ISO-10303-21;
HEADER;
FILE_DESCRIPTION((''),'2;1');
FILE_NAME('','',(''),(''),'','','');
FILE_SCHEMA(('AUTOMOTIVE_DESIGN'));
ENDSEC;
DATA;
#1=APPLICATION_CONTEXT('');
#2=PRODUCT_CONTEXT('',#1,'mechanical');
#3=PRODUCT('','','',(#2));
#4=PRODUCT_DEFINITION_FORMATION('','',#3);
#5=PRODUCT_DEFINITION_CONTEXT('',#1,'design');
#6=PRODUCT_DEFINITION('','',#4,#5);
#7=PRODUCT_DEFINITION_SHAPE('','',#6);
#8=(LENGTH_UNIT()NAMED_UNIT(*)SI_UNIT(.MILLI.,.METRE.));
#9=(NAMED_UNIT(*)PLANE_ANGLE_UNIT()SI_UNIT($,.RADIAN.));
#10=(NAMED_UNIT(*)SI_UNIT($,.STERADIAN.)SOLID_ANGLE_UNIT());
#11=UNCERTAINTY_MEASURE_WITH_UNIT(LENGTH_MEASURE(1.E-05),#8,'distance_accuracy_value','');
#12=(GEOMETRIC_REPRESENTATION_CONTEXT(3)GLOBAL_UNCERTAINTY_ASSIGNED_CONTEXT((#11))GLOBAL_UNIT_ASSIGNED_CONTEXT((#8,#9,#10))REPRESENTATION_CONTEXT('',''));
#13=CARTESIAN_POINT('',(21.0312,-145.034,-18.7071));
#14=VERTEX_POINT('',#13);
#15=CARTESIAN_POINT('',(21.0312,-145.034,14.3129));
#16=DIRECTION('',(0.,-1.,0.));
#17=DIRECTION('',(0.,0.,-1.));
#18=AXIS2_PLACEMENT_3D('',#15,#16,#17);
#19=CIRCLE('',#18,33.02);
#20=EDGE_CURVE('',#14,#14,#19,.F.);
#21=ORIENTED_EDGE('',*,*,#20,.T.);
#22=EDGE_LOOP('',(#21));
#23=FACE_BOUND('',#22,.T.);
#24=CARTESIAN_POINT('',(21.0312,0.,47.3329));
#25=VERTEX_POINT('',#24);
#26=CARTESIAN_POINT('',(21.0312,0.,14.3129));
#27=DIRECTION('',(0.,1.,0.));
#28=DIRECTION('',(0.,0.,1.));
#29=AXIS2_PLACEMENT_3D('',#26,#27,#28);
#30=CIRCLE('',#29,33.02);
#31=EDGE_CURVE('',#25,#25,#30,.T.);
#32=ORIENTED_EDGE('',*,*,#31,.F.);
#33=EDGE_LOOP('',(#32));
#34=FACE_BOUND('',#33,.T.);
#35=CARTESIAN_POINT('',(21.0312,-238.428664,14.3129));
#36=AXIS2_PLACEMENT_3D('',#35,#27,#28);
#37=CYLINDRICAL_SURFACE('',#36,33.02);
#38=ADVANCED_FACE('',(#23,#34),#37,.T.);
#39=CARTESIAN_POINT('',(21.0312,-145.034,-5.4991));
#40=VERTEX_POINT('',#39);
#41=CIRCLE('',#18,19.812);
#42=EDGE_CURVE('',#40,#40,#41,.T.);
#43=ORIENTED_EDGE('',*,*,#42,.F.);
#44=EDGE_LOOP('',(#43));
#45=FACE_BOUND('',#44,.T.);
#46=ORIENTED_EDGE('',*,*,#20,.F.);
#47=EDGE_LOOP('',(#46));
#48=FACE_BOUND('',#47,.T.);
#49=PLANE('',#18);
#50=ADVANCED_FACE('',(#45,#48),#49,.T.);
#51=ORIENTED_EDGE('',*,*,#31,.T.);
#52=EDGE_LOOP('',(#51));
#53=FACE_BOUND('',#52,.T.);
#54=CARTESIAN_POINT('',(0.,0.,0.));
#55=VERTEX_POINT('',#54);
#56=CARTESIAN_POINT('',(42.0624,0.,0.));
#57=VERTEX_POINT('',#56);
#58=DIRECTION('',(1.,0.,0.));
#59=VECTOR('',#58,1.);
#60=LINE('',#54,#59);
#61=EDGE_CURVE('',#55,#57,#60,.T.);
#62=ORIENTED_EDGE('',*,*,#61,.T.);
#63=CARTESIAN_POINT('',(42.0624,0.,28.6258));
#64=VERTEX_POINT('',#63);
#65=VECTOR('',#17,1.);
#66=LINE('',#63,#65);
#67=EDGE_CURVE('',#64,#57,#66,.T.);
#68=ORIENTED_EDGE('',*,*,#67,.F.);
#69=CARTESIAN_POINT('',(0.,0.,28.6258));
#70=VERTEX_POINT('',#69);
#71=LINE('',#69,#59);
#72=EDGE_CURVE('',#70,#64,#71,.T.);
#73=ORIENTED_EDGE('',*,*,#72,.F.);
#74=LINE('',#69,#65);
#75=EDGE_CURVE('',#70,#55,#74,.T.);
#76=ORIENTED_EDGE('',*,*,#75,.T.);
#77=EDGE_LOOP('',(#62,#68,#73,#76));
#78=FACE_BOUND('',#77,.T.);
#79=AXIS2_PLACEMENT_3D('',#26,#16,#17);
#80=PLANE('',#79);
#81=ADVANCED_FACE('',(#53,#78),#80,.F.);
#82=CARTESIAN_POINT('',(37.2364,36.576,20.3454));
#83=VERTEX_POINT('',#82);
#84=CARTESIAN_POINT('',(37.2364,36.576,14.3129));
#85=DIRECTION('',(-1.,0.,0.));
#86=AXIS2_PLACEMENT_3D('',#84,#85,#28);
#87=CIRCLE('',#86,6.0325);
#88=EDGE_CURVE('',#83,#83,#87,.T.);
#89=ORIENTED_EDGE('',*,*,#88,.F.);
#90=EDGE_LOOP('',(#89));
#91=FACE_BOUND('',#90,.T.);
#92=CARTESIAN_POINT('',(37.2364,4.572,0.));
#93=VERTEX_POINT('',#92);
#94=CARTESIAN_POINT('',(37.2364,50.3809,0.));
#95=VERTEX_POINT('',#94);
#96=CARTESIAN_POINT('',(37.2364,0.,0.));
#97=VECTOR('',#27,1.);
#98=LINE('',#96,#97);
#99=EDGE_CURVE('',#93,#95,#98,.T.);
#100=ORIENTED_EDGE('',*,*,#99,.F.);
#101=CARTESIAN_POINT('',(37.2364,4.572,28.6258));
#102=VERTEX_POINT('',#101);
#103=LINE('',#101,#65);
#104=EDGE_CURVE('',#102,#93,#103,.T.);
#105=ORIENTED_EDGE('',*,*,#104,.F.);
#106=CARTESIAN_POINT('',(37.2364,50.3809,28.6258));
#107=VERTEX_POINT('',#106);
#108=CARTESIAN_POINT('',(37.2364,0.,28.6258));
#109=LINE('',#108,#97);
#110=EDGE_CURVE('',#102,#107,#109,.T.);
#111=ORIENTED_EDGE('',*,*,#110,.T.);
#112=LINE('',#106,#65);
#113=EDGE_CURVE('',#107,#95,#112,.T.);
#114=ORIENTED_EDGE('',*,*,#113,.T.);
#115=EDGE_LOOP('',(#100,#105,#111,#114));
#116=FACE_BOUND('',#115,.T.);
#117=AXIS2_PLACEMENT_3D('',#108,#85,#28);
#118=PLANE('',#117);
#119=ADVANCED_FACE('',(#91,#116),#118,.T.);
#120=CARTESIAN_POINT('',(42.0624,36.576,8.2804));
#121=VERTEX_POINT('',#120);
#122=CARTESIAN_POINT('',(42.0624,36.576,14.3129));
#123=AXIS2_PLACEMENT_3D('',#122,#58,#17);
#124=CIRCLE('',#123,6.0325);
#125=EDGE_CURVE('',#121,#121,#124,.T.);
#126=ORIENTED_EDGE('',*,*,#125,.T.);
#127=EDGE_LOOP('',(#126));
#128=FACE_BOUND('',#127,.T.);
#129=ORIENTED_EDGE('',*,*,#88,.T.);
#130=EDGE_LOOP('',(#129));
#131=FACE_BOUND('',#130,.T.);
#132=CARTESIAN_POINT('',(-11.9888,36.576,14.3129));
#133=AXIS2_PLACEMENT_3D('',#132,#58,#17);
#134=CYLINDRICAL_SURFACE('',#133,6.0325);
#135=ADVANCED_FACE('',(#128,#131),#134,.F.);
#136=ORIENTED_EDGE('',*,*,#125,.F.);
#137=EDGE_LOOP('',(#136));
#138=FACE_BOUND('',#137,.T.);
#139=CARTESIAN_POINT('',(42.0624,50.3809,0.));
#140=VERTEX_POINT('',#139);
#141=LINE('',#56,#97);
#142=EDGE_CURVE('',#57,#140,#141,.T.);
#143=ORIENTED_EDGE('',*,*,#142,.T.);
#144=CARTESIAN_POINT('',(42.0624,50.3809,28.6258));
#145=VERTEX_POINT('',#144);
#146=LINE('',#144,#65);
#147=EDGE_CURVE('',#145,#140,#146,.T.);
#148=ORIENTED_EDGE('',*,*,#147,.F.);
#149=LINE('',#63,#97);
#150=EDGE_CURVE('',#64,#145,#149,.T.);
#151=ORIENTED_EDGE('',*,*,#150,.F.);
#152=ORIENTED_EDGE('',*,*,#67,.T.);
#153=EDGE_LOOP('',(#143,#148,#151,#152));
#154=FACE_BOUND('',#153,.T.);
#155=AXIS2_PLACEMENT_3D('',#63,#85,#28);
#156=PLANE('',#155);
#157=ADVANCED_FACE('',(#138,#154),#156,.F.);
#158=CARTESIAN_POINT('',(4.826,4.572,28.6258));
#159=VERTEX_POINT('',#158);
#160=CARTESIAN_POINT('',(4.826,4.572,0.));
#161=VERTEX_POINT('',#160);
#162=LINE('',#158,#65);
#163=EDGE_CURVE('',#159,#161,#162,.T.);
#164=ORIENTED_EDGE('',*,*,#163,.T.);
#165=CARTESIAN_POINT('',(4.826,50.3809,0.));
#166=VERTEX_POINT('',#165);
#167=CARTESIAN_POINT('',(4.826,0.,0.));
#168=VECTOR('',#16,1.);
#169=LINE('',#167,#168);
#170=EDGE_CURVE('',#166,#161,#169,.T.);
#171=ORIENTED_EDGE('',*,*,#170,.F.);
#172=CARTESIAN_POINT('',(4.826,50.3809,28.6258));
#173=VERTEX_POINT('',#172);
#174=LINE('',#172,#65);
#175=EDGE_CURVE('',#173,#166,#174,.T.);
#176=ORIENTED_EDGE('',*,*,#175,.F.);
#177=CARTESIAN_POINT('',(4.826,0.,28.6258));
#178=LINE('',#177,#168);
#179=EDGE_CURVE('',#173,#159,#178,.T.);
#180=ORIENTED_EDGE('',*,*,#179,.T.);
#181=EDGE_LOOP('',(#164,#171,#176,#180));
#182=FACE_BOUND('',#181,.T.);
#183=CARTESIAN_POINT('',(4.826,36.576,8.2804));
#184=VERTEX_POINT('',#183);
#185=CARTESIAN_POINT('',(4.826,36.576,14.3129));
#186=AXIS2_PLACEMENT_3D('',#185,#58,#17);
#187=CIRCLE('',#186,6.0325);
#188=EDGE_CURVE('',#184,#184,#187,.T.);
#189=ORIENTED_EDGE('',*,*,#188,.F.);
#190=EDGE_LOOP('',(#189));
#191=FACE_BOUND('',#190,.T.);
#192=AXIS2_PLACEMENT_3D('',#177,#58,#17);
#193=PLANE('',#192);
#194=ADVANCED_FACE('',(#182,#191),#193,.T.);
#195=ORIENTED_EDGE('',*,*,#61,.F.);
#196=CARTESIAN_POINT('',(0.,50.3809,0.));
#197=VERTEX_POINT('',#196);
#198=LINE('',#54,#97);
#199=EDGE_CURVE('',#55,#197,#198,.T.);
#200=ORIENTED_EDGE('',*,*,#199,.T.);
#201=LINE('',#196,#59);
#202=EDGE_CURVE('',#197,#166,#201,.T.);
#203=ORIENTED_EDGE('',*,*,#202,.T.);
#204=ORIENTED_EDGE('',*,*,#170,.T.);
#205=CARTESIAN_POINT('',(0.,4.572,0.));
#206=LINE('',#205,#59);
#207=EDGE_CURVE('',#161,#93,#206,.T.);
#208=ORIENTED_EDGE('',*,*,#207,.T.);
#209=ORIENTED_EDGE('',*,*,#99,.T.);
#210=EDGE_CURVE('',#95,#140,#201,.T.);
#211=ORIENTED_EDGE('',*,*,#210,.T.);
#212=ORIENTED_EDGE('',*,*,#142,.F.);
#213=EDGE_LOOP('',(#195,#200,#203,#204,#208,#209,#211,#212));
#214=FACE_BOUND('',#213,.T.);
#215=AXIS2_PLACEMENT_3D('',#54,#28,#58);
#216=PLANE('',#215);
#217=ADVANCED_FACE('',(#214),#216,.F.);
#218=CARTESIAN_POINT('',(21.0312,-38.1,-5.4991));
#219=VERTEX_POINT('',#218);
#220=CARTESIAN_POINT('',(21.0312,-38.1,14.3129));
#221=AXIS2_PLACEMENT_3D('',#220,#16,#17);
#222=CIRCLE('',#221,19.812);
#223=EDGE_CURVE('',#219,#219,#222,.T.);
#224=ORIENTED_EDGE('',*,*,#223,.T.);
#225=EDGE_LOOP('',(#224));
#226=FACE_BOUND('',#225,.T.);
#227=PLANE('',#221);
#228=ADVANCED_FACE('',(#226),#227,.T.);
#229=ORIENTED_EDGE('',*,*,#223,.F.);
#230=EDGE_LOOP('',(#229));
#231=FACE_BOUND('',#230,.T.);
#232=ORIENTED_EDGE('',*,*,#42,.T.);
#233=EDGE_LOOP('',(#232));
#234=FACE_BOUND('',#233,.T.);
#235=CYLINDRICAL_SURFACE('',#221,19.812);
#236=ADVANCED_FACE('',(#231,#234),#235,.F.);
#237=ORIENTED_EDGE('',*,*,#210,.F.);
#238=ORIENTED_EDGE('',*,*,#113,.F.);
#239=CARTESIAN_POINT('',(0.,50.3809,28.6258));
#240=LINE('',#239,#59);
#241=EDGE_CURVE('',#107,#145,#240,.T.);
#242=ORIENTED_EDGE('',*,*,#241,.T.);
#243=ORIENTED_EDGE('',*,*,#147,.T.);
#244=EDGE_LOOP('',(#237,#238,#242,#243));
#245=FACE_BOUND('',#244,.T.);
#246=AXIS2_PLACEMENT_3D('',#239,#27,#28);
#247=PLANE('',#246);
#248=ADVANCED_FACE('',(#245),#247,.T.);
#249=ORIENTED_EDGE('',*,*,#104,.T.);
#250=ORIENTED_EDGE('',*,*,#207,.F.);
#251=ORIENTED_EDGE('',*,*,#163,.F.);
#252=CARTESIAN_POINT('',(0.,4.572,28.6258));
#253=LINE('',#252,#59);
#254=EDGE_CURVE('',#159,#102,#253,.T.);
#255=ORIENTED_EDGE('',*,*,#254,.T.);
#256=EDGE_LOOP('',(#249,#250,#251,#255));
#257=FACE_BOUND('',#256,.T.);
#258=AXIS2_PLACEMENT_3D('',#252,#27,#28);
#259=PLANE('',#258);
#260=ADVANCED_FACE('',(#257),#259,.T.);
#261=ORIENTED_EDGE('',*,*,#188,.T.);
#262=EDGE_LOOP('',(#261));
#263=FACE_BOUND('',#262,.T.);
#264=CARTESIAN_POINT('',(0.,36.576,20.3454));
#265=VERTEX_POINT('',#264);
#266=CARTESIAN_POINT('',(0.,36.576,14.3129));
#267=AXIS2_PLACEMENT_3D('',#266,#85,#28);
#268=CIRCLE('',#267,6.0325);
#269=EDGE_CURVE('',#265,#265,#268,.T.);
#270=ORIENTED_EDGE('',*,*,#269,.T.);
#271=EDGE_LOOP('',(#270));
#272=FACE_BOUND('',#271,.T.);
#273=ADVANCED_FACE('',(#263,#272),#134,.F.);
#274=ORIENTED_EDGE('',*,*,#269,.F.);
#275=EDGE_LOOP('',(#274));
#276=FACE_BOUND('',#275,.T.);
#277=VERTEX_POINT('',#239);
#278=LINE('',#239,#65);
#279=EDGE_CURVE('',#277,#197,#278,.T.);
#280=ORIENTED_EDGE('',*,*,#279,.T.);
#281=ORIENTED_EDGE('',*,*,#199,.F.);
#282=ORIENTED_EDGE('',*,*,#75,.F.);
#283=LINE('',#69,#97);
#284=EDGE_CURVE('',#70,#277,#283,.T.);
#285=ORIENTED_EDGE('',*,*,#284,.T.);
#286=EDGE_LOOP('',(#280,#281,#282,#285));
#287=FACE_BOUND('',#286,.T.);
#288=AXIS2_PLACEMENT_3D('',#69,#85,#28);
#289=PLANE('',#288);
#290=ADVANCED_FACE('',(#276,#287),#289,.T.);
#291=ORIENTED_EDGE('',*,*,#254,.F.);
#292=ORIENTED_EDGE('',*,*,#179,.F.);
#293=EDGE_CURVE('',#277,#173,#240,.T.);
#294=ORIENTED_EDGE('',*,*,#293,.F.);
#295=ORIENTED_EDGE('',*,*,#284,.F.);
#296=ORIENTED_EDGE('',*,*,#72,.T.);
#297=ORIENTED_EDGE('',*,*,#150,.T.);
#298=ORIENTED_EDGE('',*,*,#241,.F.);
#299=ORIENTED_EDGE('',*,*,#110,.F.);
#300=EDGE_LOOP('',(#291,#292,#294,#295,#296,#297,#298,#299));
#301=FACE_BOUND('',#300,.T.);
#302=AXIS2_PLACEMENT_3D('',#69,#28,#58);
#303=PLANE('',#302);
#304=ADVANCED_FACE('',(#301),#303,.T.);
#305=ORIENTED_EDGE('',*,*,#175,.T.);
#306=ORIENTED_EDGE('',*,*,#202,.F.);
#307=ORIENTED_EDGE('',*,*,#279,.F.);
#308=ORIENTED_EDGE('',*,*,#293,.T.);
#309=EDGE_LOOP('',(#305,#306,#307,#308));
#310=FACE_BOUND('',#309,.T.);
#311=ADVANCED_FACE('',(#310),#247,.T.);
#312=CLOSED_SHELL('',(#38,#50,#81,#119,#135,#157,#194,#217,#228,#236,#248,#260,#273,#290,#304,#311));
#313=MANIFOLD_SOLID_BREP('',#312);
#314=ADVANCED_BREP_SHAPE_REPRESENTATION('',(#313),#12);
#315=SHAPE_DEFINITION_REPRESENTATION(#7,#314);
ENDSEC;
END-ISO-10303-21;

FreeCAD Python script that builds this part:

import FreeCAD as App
import Part
import Sketcher
from FreeCAD import Vector
Q = App.Units.Quantity

doc = App.newDocument("Part")
body = doc.addObject("PartDesign::Body", "Body")

sketch1 = body.newObject("Sketcher::SketchObject", "Sketch")
sketch1.AttachmentSupport = (doc.getObject("XY_Plane"), [""])
sketch1.MapMode = "FlatFace"
sketch1.addGeometry([
    Part.LineSegment(Vector(42.1, 50.4, 0), Vector(37.2, 50.4, 0)),
    Part.LineSegment(Vector(37.2, 50.4, 0), Vector(37.2, 4.6, 0)),
    Part.LineSegment(Vector(37.2, 4.6, 0), Vector(4.8, 4.6, 0)),
    Part.LineSegment(Vector(4.8, 4.6, 0), Vector(4.8, 50.4, 0)),
    Part.LineSegment(Vector(4.8, 50.4, 0), Vector(0, 50.4, 0)),
    Part.LineSegment(Vector(0, 50.4, 0), Vector(0, 0, 0)),
    Part.LineSegment(Vector(0, 0, 0), Vector(42.1, 0, 0)),
    Part.LineSegment(Vector(42.1, 0, 0), Vector(42.1, 50.4, 0)),
], False)
sketch1.addConstraint([
    Sketcher.Constraint("Coincident", 0, 2, 1, 1),
    Sketcher.Constraint("Coincident", 1, 2, 2, 1),
    Sketcher.Constraint("Coincident", 2, 2, 3, 1),
    Sketcher.Constraint("Coincident", 3, 2, 4, 1),
    Sketcher.Constraint("Coincident", 4, 2, 5, 1),
    Sketcher.Constraint("Coincident", 5, 2, 6, 1),
    Sketcher.Constraint("Coincident", 6, 2, 7, 1),
    Sketcher.Constraint("Coincident", 7, 2, 0, 1),
    Sketcher.Constraint("Horizontal", 0),
    Sketcher.Constraint("Vertical", 1),
    Sketcher.Constraint("Horizontal", 2),
    Sketcher.Constraint("Vertical", 3),
    Sketcher.Constraint("Horizontal", 4),
    Sketcher.Constraint("Vertical", 5),
    Sketcher.Constraint("Horizontal", 6),
    Sketcher.Constraint("Vertical", 7),
    Sketcher.Constraint("Coincident", 5, 2, -1, 1),
    Sketcher.Constraint("Horizontal", 0, 2, 3, 2),
    Sketcher.Constraint("Equal", 0, 4),
    Sketcher.Constraint("DistanceX", 0, 2, 0, 1, Q("0.19 in")),
    Sketcher.Constraint("DistanceX", 2, 2, 2, 1, Q("1.276 in")),
    Sketcher.Constraint("DistanceY", -1, 1, 1, 2, Q("0.18 in")),
    Sketcher.Constraint("DistanceY", 1, 2, 1, 1, Q("1.8035 in")),
])
pad1 = body.newObject("PartDesign::Pad", "Pad")
pad1.Profile = sketch1
pad1.Length = Q("1.127 in")

sketch2 = body.newObject("Sketcher::SketchObject", "Sketch001")
sketch2.AttachmentSupport = (doc.getObject("XZ_Plane"), [""])
sketch2.MapMode = "FlatFace"
sketch2.addGeometry(Part.Circle(Vector(21, 14, 0), Vector(0, 0, 1), 25), False)
sketch2.addConstraint([
    Sketcher.Constraint("Diameter", 0, Q("2 in")),
    Sketcher.Constraint("DistanceX", -1, 1, 0, 3, Q("0.828 in")),
    Sketcher.Constraint("DistanceY", -1, 1, 0, 3, Q("0.5635 in")),
])
pad2 = body.newObject("PartDesign::Pad", "Pad001")
pad2.Profile = sketch2
pad2.Length = Q("5.71 in")

sketch3 = body.newObject("Sketcher::SketchObject", "Sketch002")
sketch3.AttachmentSupport = (doc.getObject("XZ_Plane"), [""])
sketch3.MapMode = "FlatFace"
sketch3.addGeometry(Part.Circle(Vector(21, 14, 0), Vector(0, 0, 1), 33), False)
sketch3.addConstraint([
    Sketcher.Constraint("Diameter", 0, Q("2.6 in")),
    Sketcher.Constraint("DistanceX", -1, 1, 0, 3, Q("0.828 in")),
    Sketcher.Constraint("DistanceY", -1, 1, 0, 3, Q("0.5635 in")),
])
pad3 = body.newObject("PartDesign::Pad", "Pad002")
pad3.Profile = sketch3
pad3.Length = Q("5.71 in")

sketch4 = body.newObject("Sketcher::SketchObject", "Sketch003")
sketch4.AttachmentSupport = (doc.getObject("YZ_Plane"), [""])
sketch4.MapMode = "FlatFace"
sketch4.AttachmentOffset = App.Placement(Vector(0, 0, 1.656 * 25.4), App.Rotation())
sketch4.addGeometry(Part.Circle(Vector(37, 14, 0), Vector(0, 0, 1), 6), False)
sketch4.addConstraint([
    Sketcher.Constraint("Diameter", 0, Q("0.475 in")),
    Sketcher.Constraint("DistanceX", -1, 1, 0, 3, Q("1.44 in")),
    Sketcher.Constraint("DistanceY", -1, 1, 0, 3, Q("0.5635 in")),
])
pocket1 = body.newObject("PartDesign::Pocket", "Pocket")
pocket1.Profile = sketch4
pocket1.Type = "ThroughAll"

sketch5 = body.newObject("Sketcher::SketchObject", "Sketch004")
sketch5.AttachmentSupport = (doc.getObject("XZ_Plane"), [""])
sketch5.MapMode = "FlatFace"
sketch5.AttachmentOffset = App.Placement(Vector(0, 0, 5.71 * 25.4), App.Rotation())
sketch5.addGeometry(Part.Circle(Vector(21, 14, 0), Vector(0, 0, 1), 20), False)
sketch5.addConstraint([
    Sketcher.Constraint("Diameter", 0, Q("1.56 in")),
    Sketcher.Constraint("DistanceX", -1, 1, 0, 3, Q("0.828 in")),
    Sketcher.Constraint("DistanceY", -1, 1, 0, 3, Q("0.5635 in")),
])
pocket2 = body.newObject("PartDesign::Pocket", "Pocket001")
pocket2.Profile = sketch5
pocket2.Length = Q("4.21 in")

doc.recompute()
